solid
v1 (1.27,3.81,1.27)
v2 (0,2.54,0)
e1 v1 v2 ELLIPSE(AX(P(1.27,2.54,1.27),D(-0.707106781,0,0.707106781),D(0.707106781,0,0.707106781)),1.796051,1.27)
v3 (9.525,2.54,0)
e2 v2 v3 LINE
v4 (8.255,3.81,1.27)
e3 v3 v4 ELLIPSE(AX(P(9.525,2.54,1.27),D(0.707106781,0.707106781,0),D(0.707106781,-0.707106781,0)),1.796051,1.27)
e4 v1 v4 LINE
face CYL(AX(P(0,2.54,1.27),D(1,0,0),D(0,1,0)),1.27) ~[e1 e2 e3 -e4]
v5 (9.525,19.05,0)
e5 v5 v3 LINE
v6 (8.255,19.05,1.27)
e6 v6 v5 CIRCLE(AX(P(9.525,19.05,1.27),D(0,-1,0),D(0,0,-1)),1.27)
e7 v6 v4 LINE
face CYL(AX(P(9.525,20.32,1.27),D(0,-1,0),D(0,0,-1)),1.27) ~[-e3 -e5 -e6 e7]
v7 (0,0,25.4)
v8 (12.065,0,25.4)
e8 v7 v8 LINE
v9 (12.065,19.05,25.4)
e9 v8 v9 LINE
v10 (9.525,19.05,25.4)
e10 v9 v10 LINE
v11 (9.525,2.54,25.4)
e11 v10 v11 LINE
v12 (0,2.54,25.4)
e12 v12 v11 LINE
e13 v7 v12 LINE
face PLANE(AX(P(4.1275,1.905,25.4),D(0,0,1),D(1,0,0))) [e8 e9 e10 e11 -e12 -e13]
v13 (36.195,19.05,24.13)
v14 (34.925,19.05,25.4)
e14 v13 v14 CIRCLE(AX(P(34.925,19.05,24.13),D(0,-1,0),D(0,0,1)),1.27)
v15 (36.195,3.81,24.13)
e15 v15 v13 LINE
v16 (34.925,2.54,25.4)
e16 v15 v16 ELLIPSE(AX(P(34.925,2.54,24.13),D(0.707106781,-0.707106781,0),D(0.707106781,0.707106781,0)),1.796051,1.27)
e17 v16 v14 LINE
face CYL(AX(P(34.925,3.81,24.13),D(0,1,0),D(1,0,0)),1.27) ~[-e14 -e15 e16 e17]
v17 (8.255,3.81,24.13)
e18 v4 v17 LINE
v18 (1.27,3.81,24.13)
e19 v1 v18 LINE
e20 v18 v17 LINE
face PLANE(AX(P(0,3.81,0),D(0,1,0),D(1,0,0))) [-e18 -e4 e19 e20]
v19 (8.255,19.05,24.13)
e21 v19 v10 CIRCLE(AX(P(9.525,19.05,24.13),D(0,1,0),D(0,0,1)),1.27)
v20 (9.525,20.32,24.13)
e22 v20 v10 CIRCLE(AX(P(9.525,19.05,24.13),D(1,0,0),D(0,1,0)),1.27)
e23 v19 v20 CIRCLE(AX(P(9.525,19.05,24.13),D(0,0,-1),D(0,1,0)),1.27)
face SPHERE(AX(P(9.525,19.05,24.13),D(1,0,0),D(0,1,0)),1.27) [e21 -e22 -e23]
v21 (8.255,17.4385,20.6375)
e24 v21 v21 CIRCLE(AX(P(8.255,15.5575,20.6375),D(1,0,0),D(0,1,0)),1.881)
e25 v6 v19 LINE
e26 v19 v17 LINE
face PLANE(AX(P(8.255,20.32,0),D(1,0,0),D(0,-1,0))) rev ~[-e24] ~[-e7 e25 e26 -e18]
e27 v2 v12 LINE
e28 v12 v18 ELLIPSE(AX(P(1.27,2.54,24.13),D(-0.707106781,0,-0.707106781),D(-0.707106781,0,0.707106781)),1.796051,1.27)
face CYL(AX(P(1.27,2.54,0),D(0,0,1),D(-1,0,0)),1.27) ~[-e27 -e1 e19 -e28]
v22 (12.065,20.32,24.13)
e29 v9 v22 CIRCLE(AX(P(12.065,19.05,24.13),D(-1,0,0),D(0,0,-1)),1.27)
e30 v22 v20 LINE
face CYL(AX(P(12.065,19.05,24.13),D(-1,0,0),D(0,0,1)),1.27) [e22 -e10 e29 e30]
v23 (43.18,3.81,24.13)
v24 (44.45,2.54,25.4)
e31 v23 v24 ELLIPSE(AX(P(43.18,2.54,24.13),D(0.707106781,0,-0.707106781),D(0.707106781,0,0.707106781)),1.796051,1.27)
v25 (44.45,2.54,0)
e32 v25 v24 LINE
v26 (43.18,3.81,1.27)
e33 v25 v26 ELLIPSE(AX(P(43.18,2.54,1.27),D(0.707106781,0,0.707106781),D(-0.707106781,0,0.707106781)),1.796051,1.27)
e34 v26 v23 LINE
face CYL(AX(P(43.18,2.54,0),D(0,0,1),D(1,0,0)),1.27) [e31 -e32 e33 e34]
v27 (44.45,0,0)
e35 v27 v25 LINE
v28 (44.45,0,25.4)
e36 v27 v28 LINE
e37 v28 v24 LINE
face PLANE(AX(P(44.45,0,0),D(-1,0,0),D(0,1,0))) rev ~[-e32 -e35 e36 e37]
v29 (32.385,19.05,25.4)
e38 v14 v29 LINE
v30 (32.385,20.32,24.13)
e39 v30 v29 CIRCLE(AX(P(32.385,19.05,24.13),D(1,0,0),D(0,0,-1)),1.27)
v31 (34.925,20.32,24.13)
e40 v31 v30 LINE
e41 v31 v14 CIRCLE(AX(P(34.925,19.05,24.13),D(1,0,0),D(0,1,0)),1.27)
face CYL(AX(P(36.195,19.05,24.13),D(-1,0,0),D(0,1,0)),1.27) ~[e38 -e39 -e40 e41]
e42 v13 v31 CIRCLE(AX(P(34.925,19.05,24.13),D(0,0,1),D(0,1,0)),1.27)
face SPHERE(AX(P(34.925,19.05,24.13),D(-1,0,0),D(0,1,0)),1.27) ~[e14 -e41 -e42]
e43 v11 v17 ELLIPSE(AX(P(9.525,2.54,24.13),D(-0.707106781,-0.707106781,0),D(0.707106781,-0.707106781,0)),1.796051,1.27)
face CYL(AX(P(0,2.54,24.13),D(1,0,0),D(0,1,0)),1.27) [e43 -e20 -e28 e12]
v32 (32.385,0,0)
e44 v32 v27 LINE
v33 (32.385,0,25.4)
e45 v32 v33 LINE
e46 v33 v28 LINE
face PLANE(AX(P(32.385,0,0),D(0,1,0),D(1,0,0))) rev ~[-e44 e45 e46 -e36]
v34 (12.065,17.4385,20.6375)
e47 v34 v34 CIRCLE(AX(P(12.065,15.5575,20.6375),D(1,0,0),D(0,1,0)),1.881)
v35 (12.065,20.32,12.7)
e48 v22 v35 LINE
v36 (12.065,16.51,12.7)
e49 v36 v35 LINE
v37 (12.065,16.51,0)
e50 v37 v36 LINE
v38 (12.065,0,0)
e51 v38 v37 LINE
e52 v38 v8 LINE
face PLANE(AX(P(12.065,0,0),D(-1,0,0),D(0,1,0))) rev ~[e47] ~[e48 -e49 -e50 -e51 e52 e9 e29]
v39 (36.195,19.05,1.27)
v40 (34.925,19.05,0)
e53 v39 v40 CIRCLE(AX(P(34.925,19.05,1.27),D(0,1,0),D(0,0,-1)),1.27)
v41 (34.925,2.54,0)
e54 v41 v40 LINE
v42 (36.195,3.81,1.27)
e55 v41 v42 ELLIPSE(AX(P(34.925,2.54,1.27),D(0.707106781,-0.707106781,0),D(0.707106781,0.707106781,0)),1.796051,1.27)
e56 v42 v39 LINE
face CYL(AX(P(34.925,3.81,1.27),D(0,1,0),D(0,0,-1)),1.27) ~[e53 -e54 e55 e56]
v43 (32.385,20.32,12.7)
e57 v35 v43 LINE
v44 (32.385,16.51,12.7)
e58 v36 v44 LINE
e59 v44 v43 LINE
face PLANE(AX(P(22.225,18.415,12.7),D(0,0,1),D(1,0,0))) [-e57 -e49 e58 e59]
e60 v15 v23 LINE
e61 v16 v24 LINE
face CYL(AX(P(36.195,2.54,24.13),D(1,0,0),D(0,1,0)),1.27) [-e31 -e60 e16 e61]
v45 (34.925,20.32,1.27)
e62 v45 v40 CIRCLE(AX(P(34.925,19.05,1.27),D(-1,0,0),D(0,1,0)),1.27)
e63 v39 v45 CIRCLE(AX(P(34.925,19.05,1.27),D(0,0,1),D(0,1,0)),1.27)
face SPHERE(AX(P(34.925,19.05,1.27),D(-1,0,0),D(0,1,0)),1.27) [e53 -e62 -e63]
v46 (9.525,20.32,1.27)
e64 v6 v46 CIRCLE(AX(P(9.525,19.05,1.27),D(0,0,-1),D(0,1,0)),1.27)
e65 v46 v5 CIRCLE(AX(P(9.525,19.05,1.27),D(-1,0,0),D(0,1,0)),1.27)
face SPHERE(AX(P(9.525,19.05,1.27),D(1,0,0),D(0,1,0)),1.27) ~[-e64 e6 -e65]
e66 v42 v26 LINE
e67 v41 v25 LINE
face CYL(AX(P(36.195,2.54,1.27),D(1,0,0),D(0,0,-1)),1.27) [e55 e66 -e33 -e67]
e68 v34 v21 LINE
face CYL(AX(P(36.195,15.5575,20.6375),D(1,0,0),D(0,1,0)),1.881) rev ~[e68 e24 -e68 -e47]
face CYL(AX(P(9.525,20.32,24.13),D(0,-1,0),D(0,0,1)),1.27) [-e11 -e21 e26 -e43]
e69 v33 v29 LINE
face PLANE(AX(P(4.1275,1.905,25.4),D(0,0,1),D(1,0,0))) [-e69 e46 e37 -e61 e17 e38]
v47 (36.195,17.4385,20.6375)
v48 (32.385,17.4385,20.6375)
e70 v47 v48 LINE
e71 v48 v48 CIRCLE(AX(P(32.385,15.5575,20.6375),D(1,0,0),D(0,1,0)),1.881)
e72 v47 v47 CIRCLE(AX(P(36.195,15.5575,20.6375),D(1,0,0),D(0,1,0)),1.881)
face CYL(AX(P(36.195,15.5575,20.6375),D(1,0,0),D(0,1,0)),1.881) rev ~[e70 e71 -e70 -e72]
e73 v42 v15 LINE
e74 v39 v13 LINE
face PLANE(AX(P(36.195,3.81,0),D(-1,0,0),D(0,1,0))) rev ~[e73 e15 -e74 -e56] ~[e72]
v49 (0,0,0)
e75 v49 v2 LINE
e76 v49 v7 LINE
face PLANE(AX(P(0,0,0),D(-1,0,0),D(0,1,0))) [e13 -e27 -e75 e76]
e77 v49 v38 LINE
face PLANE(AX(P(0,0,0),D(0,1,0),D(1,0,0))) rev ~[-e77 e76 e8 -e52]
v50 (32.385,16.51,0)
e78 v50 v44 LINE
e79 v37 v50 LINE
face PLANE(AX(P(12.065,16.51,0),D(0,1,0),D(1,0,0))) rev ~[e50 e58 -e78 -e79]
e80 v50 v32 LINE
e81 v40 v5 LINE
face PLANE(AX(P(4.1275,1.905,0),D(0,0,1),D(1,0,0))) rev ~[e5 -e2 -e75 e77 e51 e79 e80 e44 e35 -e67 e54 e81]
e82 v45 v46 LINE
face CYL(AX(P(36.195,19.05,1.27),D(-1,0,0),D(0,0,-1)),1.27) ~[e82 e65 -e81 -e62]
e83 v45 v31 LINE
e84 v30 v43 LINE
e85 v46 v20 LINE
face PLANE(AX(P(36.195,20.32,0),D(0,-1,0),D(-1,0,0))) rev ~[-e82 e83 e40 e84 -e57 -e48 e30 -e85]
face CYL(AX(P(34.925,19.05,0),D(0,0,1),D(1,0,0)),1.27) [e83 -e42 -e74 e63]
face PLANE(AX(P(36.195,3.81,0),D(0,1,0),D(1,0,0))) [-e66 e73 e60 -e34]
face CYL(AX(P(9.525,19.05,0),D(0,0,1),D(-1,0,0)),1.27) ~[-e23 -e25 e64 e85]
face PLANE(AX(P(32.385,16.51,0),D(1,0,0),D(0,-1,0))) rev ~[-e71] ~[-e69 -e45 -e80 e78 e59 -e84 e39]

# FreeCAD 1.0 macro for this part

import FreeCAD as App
import Part
import Sketcher

V = App.Vector
Q = App.Units.Quantity


def edges_at(feature, points):
    """Names of the edges that pass closest to the given points."""
    edges = feature.Shape.Edges
    near = lambda p: min(range(len(edges)), key=lambda i: edges[i].distToShape(Part.Vertex(*p))[0])
    return sorted({f"Edge{near(p) + 1}" for p in points})


def add_polygon(sketch, points):
    """Adds a closed chain of lines whose ends are joined by coincident constraints."""
    first, n = sketch.GeometryCount, len(points)
    for a, b in zip(points, points[1:] + points[:1]):
        sketch.addGeometry(Part.LineSegment(App.Vector(*a, 0), App.Vector(*b, 0)), False)
    for i in range(n):
        sketch.addConstraint(Sketcher.Constraint("Coincident", first + i, 2, first + (i + 1) % n, 1))

doc = App.newDocument("Part")
body = doc.addObject("PartDesign::Body", "Body")

sketch1 = body.newObject("Sketcher::SketchObject", "Sketch")
sketch1.AttachmentSupport = (doc.getObject("XY_Plane"), [""])
sketch1.MapMode = "FlatFace"
add_polygon(sketch1, [(0, 3.8), (0, 0), (12.1, 0), (12.1, 16.5), (32.4, 16.5), (32.4, 0), (44.5, 0), (44.5, 3.8), (36.2, 3.8), (36.2, 20.3), (8.3, 20.3), (8.3, 3.8)])
sketch1.addConstraint(Sketcher.Constraint("Vertical", 0))
sketch1.addConstraint(Sketcher.Constraint("Horizontal", 1))
sketch1.addConstraint(Sketcher.Constraint("Vertical", 2))
sketch1.addConstraint(Sketcher.Constraint("Horizontal", 3))
sketch1.addConstraint(Sketcher.Constraint("Vertical", 4))
sketch1.addConstraint(Sketcher.Constraint("Horizontal", 5))
sketch1.addConstraint(Sketcher.Constraint("Vertical", 6))
sketch1.addConstraint(Sketcher.Constraint("Horizontal", 7))
sketch1.addConstraint(Sketcher.Constraint("Vertical", 8))
sketch1.addConstraint(Sketcher.Constraint("Horizontal", 9))
sketch1.addConstraint(Sketcher.Constraint("Vertical", 10))
sketch1.addConstraint(Sketcher.Constraint("Horizontal", 11))
sketch1.addConstraint(Sketcher.Constraint("Coincident", 0, 2, -1, 1))
sketch1.addConstraint(Sketcher.Constraint("PointOnObject", 4, 2, -1))
sketch1.addConstraint(Sketcher.Constraint("Horizontal", 7, 2, 10, 2))
sketch1.addConstraint(Sketcher.Constraint("Equal", 1, 5))
sketch1.addConstraint(Sketcher.Constraint("Equal", 7, 11))
sketch1.addConstraint(Sketcher.Constraint("Equal", 4, 8))
sketch1.addConstraint(Sketcher.Constraint("DistanceX", 3, 1, 3, 2, Q("0.8 in")))
sketch1.addConstraint(Sketcher.Constraint("DistanceX", 9, 2, 9, 1, Q("1.1 in")))
sketch1.addConstraint(Sketcher.Constraint("DistanceY", 0, 2, 0, 1, Q("0.15 in")))
sketch1.addConstraint(Sketcher.Constraint("DistanceY", 2, 1, 2, 2, Q("0.65 in")))
sketch1.addConstraint(Sketcher.Constraint("DistanceX", 1, 1, 1, 2, Q("0.475 in")))
pad1 = body.newObject("PartDesign::Pad", "Pad")
pad1.Profile = sketch1
pad1.Length = Q("1 in")

sketch2 = body.newObject("Sketcher::SketchObject", "Sketch001")
sketch2.AttachmentSupport = (doc.getObject("XY_Plane"), [""])
sketch2.MapMode = "FlatFace"
sketch2.AttachmentOffset = App.Placement(V(0, 0, 1 * 25.4), App.Rotation())
add_polygon(sketch2, [(12.1, 20.3), (12.1, 16.5), (32.4, 16.5), (32.4, 20.3)])
sketch2.addConstraint(Sketcher.Constraint("Vertical", 0))
sketch2.addConstraint(Sketcher.Constraint("Horizontal", 1))
sketch2.addConstraint(Sketcher.Constraint("Vertical", 2))
sketch2.addConstraint(Sketcher.Constraint("Horizontal", 3))
sketch2.addConstraint(Sketcher.Constraint("DistanceX", 1, 1, 1, 2, Q("0.8 in")))
sketch2.addConstraint(Sketcher.Constraint("DistanceY", 0, 2, 0, 1, Q("0.15 in")))
sketch2.addConstraint(Sketcher.Constraint("DistanceY", -1, 1, 2, 2, Q("0.8 in")))
sketch2.addConstraint(Sketcher.Constraint("DistanceX", -1, 1, 0, 2, Q("0.475 in")))
pocket1 = body.newObject("PartDesign::Pocket", "Pocket")
pocket1.Profile = sketch2
pocket1.Length = Q("0.5 in")

sketch3 = body.newObject("Sketcher::SketchObject", "Sketch002")
sketch3.AttachmentSupport = (doc.getObject("YZ_Plane"), [""])
sketch3.MapMode = "FlatFace"
sketch3.AttachmentOffset = App.Placement(V(0, 0, 1.425 * 25.4), App.Rotation())
sketch3.addGeometry(Part.Circle(V(15.6, 20.6, 0), V(0, 0, 1), 1.9), False)
sketch3.addConstraint(Sketcher.Constraint("Diameter", 0, 3.762))
sketch3.addConstraint(Sketcher.Constraint("DistanceY", -1, 1, 0, 3, Q("0.8125 in")))
sketch3.addConstraint(Sketcher.Constraint("DistanceX", -1, 1, 0, 3, Q("0.6125 in")))
pocket2 = body.newObject("PartDesign::Pocket", "Pocket001")
pocket2.Profile = sketch3
pocket2.Type = "ThroughAll"
doc.recompute()

fillet = body.newObject("PartDesign::Fillet", "Fillet")
fillet.Base = (pocket2, edges_at(pocket2, [
    (10.16, 20.32, 25.4),
    (34.29, 20.32, 25.4),
    (22.225, 20.32, 0),
    (36.195, 20.32, 12.7),
    (8.255, 20.32, 12.7),
    (36.195, 12.065, 25.4),
    (8.255, 12.065, 25.4),
    (36.195, 12.065, 0),
    (8.255, 12.065, 0),
    (4.128, 3.81, 0),
    (0, 3.81, 12.7),
    (4.128, 3.81, 25.4),
    (40.322, 3.81, 25.4),
    (44.45, 3.81, 12.7),
    (40.322, 3.81, 0),
]))
fillet.Radius = Q("0.05 in")

doc.recompute()
